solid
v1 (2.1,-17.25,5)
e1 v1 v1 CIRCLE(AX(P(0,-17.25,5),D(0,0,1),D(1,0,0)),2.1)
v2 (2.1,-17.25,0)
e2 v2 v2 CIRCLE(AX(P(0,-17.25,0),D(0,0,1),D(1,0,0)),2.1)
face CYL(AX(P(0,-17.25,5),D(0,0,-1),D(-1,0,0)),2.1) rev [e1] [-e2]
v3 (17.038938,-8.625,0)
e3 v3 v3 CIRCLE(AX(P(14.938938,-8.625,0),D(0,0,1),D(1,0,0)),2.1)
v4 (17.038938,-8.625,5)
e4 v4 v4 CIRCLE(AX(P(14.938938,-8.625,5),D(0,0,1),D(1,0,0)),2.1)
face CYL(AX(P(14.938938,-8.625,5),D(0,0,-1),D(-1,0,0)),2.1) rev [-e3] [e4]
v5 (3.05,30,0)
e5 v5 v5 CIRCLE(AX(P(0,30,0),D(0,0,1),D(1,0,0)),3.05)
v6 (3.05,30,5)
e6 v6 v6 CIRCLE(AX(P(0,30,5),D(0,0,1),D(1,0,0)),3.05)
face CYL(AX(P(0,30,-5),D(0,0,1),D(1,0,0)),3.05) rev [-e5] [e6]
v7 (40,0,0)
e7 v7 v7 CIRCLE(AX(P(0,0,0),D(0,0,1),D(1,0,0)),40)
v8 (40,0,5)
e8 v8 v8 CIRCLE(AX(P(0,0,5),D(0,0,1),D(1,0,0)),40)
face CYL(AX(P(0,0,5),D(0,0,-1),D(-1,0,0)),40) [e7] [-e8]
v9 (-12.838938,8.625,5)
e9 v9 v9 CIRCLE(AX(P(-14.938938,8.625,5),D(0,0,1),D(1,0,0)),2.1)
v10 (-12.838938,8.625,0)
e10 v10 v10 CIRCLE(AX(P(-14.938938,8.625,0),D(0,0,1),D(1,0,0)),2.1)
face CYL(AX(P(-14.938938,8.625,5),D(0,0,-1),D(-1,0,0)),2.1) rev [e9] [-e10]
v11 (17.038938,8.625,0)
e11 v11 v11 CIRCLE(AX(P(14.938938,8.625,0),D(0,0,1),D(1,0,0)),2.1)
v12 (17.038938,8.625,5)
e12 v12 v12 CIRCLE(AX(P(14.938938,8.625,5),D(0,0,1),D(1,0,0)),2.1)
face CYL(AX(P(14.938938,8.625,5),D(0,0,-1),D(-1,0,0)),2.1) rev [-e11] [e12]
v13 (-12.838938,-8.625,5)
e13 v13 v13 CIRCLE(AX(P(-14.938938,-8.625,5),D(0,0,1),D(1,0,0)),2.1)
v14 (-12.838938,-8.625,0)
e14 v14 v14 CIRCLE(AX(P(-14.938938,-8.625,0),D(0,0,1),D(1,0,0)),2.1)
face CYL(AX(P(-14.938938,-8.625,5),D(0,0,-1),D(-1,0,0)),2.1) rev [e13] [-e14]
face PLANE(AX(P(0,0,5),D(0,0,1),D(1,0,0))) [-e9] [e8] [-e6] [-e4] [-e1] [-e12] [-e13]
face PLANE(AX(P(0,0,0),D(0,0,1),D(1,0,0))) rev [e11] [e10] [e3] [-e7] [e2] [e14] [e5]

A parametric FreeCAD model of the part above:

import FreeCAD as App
import Part
import Sketcher
from FreeCAD import Vector
Q = App.Units.Quantity

doc = App.newDocument("Part")
body = doc.addObject("PartDesign::Body", "Body")

# Sketch on XY plane
sketch1 = body.newObject("Sketcher::SketchObject", "Sketch")
sketch1.AttachmentSupport = (doc.getObject("XY_Plane"), [""])
sketch1.MapMode = "FlatFace"
sketch1.addGeometry([
    Part.Circle(Vector(0, 0, 0), Vector(0, 0, 1), 40),  # 0
    Part.Circle(Vector(-14.9, -8.6, 0), Vector(0, 0, 1), 2.1),  # 1
    Part.Circle(Vector(0, -17.2, 0), Vector(0, 0, 1), 2.1),  # 2
    Part.Circle(Vector(14.9, -8.6, 0), Vector(0, 0, 1), 2.1),  # 3
    Part.Circle(Vector(-14.9, 8.6, 0), Vector(0, 0, 1), 2.1),  # 4
    Part.Circle(Vector(14.9, 8.6, 0), Vector(0, 0, 1), 2.1),  # 5
], False)
sketch1.addConstraint([
    Sketcher.Constraint("Coincident", 0, 3, -1, 1),
    Sketcher.Constraint("Equal", 1, 2),
    Sketcher.Constraint("Equal", 2, 3),
    Sketcher.Constraint("Equal", 3, 4),
    Sketcher.Constraint("Equal", 4, 5),
    Sketcher.Constraint("Symmetric", 3, 3, 4, 3, -1, 1),
    Sketcher.Constraint("Symmetric", 1, 3, 5, 3, -1, 1),
    Sketcher.Constraint("Symmetric", 1, 3, 3, 3, -2),
    Sketcher.Constraint("PointOnObject", 2, 3, -2),
    Sketcher.Constraint("Diameter", 0, Q("80 mm")),
    Sketcher.Constraint("Diameter", 1, Q("4.2 mm")),
    Sketcher.Constraint("DistanceY", 2, 3, -1, 1, Q("17.25 mm")),
    Sketcher.Constraint("DistanceY", 1, 3, 4, 3, Q("17.25 mm")),
    Sketcher.Constraint("DistanceX", 1, 3, -1, 1, Q("14.938938 mm")),
])
pad1 = body.newObject("PartDesign::Pad", "Pad")
pad1.Profile = sketch1
pad1.Length = 5

# Sketch on XY plane
sketch2 = body.newObject("Sketcher::SketchObject", "Sketch001")
sketch2.AttachmentSupport = (doc.getObject("XY_Plane"), [""])
sketch2.MapMode = "FlatFace"
sketch2.AttachmentOffset = App.Placement(Vector(0, 0, 5), App.Rotation())
sketch2.addGeometry(Part.Circle(Vector(0, 30, 0), Vector(0, 0, 1), 3), False)
sketch2.addConstraint([
    Sketcher.Constraint("PointOnObject", 0, 3, -2),
    Sketcher.Constraint("Diameter", 0, Q("6.1 mm")),
    Sketcher.Constraint("DistanceY", -1, 1, 0, 3, Q("30 mm")),
])
pocket1 = body.newObject("PartDesign::Pocket", "Pocket")
pocket1.Profile = sketch2
pocket1.Length = 10

doc.recompute()
